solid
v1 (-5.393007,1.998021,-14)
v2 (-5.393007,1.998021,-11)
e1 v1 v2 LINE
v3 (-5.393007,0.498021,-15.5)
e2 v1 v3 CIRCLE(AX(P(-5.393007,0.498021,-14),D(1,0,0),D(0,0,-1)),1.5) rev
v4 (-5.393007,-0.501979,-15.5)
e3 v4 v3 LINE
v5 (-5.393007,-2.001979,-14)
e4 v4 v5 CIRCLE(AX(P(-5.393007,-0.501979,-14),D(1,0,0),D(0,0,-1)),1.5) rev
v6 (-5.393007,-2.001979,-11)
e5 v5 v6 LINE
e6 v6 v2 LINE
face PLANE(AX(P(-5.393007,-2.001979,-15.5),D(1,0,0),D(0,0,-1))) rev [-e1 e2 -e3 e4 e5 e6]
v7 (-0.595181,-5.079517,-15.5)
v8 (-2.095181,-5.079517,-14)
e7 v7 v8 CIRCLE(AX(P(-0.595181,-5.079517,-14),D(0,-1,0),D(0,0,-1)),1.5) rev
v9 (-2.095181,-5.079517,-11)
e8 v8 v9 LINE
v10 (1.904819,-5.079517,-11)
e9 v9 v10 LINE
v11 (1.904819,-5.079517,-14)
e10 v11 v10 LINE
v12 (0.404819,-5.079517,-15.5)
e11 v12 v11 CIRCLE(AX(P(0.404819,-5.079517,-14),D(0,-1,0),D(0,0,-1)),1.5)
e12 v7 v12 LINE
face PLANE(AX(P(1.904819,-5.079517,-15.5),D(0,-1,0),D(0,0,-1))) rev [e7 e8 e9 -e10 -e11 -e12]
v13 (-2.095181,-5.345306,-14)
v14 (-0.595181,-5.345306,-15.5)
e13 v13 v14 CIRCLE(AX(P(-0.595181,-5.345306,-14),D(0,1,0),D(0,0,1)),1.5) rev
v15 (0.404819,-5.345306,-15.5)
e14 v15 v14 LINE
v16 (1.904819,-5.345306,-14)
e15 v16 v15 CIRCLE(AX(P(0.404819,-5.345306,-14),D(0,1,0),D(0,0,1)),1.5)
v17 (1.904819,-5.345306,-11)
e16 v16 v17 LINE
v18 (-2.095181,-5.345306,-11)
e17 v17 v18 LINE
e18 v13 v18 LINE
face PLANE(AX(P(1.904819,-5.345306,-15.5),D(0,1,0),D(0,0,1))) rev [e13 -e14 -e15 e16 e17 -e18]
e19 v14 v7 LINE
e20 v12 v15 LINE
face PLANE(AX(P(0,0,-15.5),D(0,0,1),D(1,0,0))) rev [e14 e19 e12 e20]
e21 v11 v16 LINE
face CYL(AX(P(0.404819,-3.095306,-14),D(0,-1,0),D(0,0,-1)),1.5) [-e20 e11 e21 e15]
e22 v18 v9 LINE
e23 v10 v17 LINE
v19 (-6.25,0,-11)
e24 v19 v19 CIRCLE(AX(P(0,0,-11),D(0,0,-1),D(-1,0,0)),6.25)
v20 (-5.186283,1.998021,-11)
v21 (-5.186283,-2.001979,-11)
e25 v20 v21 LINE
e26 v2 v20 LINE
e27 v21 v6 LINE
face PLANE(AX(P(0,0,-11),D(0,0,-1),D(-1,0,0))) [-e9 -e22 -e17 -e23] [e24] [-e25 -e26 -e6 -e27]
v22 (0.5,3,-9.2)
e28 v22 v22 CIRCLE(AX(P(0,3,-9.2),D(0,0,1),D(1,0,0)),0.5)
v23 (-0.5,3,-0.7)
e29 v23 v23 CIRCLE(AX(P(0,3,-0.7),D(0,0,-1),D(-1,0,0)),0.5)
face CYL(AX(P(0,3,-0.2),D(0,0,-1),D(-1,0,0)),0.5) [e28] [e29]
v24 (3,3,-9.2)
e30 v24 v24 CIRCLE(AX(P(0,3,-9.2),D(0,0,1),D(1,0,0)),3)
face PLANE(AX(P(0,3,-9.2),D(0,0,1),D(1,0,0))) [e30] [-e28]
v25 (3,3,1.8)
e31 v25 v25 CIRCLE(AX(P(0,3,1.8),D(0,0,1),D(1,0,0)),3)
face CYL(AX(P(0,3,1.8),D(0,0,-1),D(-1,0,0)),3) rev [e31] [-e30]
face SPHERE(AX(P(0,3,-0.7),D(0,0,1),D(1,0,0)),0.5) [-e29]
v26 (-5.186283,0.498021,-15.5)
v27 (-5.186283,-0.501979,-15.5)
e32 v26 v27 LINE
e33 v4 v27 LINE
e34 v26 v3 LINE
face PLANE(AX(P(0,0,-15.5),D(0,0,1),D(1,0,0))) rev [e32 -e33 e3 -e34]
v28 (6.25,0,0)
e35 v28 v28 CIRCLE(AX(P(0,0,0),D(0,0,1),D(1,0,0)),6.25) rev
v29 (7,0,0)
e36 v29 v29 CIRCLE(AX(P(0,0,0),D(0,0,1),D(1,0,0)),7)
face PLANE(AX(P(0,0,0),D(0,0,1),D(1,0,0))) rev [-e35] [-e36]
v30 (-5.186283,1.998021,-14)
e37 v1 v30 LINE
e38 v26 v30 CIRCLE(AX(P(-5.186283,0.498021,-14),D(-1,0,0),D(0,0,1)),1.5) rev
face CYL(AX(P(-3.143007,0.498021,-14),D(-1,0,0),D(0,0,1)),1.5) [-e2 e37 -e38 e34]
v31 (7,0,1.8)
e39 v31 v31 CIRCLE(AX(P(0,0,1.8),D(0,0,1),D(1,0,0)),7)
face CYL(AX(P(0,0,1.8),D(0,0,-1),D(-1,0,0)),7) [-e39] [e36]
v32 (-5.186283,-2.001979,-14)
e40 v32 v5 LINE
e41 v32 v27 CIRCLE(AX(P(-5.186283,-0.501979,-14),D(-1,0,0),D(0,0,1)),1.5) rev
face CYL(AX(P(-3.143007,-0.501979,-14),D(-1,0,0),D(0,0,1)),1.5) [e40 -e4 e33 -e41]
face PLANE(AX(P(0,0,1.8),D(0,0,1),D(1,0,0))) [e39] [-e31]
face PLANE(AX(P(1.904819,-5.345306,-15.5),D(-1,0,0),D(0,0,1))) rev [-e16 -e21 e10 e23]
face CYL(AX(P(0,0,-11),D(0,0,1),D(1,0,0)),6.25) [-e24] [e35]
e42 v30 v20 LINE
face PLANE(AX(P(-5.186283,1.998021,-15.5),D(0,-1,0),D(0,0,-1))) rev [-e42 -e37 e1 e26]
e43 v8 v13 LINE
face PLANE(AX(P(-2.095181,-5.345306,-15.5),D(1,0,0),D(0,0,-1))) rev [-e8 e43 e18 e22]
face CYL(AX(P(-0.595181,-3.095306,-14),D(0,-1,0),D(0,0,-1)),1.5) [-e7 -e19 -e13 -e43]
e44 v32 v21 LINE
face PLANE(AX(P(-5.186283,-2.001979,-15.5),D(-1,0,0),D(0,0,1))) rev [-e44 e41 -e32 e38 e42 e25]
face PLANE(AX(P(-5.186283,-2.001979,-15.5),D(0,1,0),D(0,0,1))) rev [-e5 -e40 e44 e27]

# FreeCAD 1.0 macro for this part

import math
import FreeCAD as App
import Part
import Sketcher
Q = App.Units.Quantity


def edges_at(feature, points):
    """Names of the edges that pass closest to the given points."""
    edges = feature.Shape.Edges
    near = lambda p: min(range(len(edges)), key=lambda i: edges[i].distToShape(Part.Vertex(*p))[0])
    return sorted({f"Edge{near(p) + 1}" for p in points})


def add_polygon(sketch, points):
    """Adds a closed chain of lines whose ends are joined by coincident constraints."""
    first, n = sketch.GeometryCount, len(points)
    for a, b in zip(points, points[1:] + points[:1]):
        sketch.addGeometry(Part.LineSegment(App.Vector(*a, 0), App.Vector(*b, 0)), False)
    for i in range(n):
        sketch.addConstraint(Sketcher.Constraint("Coincident", first + i, 2, first + (i + 1) % n, 1))

doc = App.newDocument("Part")
body = doc.addObject("PartDesign::Body", "Body")

sketch1 = body.newObject("Sketcher::SketchObject", "Sketch")
sketch1.AttachmentSupport = (doc.getObject("XY_Plane"), [""])
sketch1.MapMode = "FlatFace"
sketch1.addGeometry([
    Part.Circle(App.Vector(0, 0, 0), App.Vector(0, 0, 1), 7),
    Part.Circle(App.Vector(0, 3, 0), App.Vector(0, 0, 1), 3),
], False)
sketch1.addConstraint([
    Sketcher.Constraint("Coincident", 0, 3, -1, 1),
    Sketcher.Constraint("PointOnObject", 1, 3, -2),
    Sketcher.Constraint("Diameter", 0, Q("14 mm")),
    Sketcher.Constraint("Diameter", 1, Q("6 mm")),
    Sketcher.Constraint("DistanceY", -1, 1, 1, 3, Q("3 mm")),
])
pad1 = body.newObject("PartDesign::Pad", "Pad")
pad1.Profile = sketch1
pad1.Length = 1.8

sketch2 = body.newObject("Sketcher::SketchObject", "Sketch001")
sketch2.AttachmentSupport = (doc.getObject("XY_Plane"), [""])
sketch2.MapMode = "FlatFace"
sketch2.addGeometry(Part.Circle(App.Vector(0, 0, 0), App.Vector(0, 0, 1), 6), False)
sketch2.addConstraint([
    Sketcher.Constraint("Coincident", 0, 3, -1, 1),
    Sketcher.Constraint("Diameter", 0, Q("12.5 mm")),
])
pad2 = body.newObject("PartDesign::Pad", "Pad001")
pad2.Profile = sketch2
pad2.Length = 11
pad2.Reversed = True

sketch3 = body.newObject("Sketcher::SketchObject", "Sketch002")
sketch3.AttachmentSupport = (doc.getObject("XY_Plane"), [""])
sketch3.MapMode = "FlatFace"
sketch3.AttachmentOffset = App.Placement(App.Vector(0, 0, -9.2), App.Rotation())
sketch3.addGeometry(Part.Circle(App.Vector(0, 3, 0), App.Vector(0, 0, 1), 3), False)
sketch3.addConstraint([
    Sketcher.Constraint("PointOnObject", 0, 3, -2),
    Sketcher.Constraint("Diameter", 0, Q("6 mm")),
    Sketcher.Constraint("DistanceY", -1, 1, 0, 3, Q("3 mm")),
])
pocket1 = body.newObject("PartDesign::Pocket", "Pocket")
pocket1.Profile = sketch3
pocket1.Length = 11
pocket1.Reversed = True

sketch4 = body.newObject("Sketcher::SketchObject", "Sketch003")
sketch4.AttachmentSupport = (doc.getObject("XY_Plane"), [""])
sketch4.MapMode = "FlatFace"
sketch4.AttachmentOffset = App.Placement(App.Vector(0, 0, -9.2), App.Rotation())
sketch4.addGeometry(Part.Circle(App.Vector(0, 3, 0), App.Vector(0, 0, 1), 0.5), False)
sketch4.addConstraint([
    Sketcher.Constraint("PointOnObject", 0, 3, -2),
    Sketcher.Constraint("Diameter", 0, Q("1 mm")),
    Sketcher.Constraint("DistanceY", -1, 1, 0, 3, Q("3 mm")),
])
pad3 = body.newObject("PartDesign::Pad", "Pad002")
pad3.Profile = sketch4
pad3.Length = 9
doc.recompute()

fillet = body.newObject("PartDesign::Fillet", "Fillet")
fillet.Base = (pad3, edges_at(pad3, [(-0.5, 3, -0.2)]))
fillet.Radius = 0.5

sketch5 = body.newObject("Sketcher::SketchObject", "Sketch004")
sketch5.AttachmentSupport = (doc.getObject("XY_Plane"), [""])
sketch5.MapMode = "FlatFace"
sketch5.AttachmentOffset = App.Placement(App.Vector(0, 0, -11), App.Rotation())
add_polygon(sketch5, [(1.9, -5.08), (1.9, -5.35), (-2.1, -5.35), (-2.1, -5.08)])
add_polygon(sketch5, [(-5.19, 2), (-5.19, -2), (-5.39, -2), (-5.39, 2)])
sketch5.addConstraint([
    Sketcher.Constraint("Vertical", 0),
    Sketcher.Constraint("Horizontal", 1),
    Sketcher.Constraint("Vertical", 2),
    Sketcher.Constraint("Horizontal", 3),
    Sketcher.Constraint("Vertical", 4),
    Sketcher.Constraint("Horizontal", 5),
    Sketcher.Constraint("Vertical", 6),
    Sketcher.Constraint("Horizontal", 7),
    Sketcher.Constraint("Equal", 3, 4),
    Sketcher.Constraint("DistanceX", 1, 2, 1, 1, Q("4 mm")),
    Sketcher.Constraint("DistanceY", 0, 2, 0, 1, Q("0.265789 mm")),
    Sketcher.Constraint("DistanceX", 4, 2, 2, 2, Q("3.091102 mm")),
    Sketcher.Constraint("DistanceX", 5, 2, 5, 1, Q("0.206725 mm")),
    Sketcher.Constraint("DistanceX", -1, 1, 0, 2, Q("1.904819 mm")),
    Sketcher.Constraint("DistanceY", 4, 2, -1, 1, Q("2.001979 mm")),
    Sketcher.Constraint("DistanceY", 0, 2, -1, 1, Q("5.345306 mm")),
])
pad4 = body.newObject("PartDesign::Pad", "Pad003")
pad4.Profile = sketch5
pad4.Length = 4.5
pad4.Reversed = True

sketch6 = body.newObject("Sketcher::SketchObject", "Sketch005")
sketch6.AttachmentSupport = (doc.getObject("YZ_Plane"), [""])
sketch6.MapMode = "FlatFace"
sketch6.AttachmentOffset = App.Placement(App.Vector(0, 0, -5.393007), App.Rotation())
sketch6.addGeometry([
    Part.LineSegment(App.Vector(-2, -15.5, 0), App.Vector(-2, -14, 0)),
    Part.ArcOfCircle(Part.Circle(App.Vector(-0.5, -14, 0), App.Vector(0, 0, 1), 1.5), math.radians(180), math.radians(270)),
    Part.LineSegment(App.Vector(-0.5, -15.5, 0), App.Vector(-2, -15.5, 0)),
    Part.LineSegment(App.Vector(2, -15.5, 0), App.Vector(0.5, -15.5, 0)),
    Part.ArcOfCircle(Part.Circle(App.Vector(0.5, -14, 0), App.Vector(0, 0, 1), 1.5), math.radians(-90), math.radians(0)),
    Part.LineSegment(App.Vector(2, -14, 0), App.Vector(2, -15.5, 0)),
], False)
sketch6.addConstraint([
    Sketcher.Constraint("Tangent", 0, 2, 1, 1),
    Sketcher.Constraint("Tangent", 1, 2, 2, 1),
    Sketcher.Constraint("Coincident", 2, 2, 0, 1),
    Sketcher.Constraint("Tangent", 3, 2, 4, 1),
    Sketcher.Constraint("Tangent", 4, 2, 5, 1),
    Sketcher.Constraint("Coincident", 5, 2, 3, 1),
    Sketcher.Constraint("Vertical", 0),
    Sketcher.Constraint("Horizontal", 2),
    Sketcher.Constraint("Horizontal", 3),
    Sketcher.Constraint("Vertical", 5),
    Sketcher.Constraint("Equal", 1, 4),
    Sketcher.Constraint("Horizontal", 1, 3, 4, 3),
    Sketcher.Constraint("Radius", 1, Q("1.5 mm")),
    Sketcher.Constraint("DistanceY", 1, 3, -1, 1, Q("14 mm")),
    Sketcher.Constraint("DistanceX", 1, 3, 4, 3, Q("1 mm")),
    Sketcher.Constraint("DistanceX", 1, 3, -1, 1, Q("0.501979 mm")),
])
pocket2 = body.newObject("PartDesign::Pocket", "Pocket001")
pocket2.Profile = sketch6
pocket2.Length = 4.5
pocket2.Midplane = True

sketch7 = body.newObject("Sketcher::SketchObject", "Sketch006")
sketch7.AttachmentSupport = (doc.getObject("XZ_Plane"), [""])
sketch7.MapMode = "FlatFace"
sketch7.AttachmentOffset = App.Placement(App.Vector(0, 0, 5.345306), App.Rotation())
sketch7.addGeometry([
    Part.LineSegment(App.Vector(1.9, -15.5, 0), App.Vector(1.9, -14, 0)),
    Part.ArcOfCircle(Part.Circle(App.Vector(0.4, -14, 0), App.Vector(0, 0, 1), 1.5), math.radians(-90), math.radians(0)),
    Part.LineSegment(App.Vector(0.4, -15.5, 0), App.Vector(1.9, -15.5, 0)),
    Part.LineSegment(App.Vector(-2.1, -15.5, 0), App.Vector(-0.6, -15.5, 0)),
    Part.ArcOfCircle(Part.Circle(App.Vector(-0.6, -14, 0), App.Vector(0, 0, 1), 1.5), math.radians(180), math.radians(270)),
    Part.LineSegment(App.Vector(-2.1, -14, 0), App.Vector(-2.1, -15.5, 0)),
], False)
sketch7.addConstraint([
    Sketcher.Constraint("Tangent", 0, 2, 1, 2),
    Sketcher.Constraint("Tangent", 1, 1, 2, 1),
    Sketcher.Constraint("Coincident", 2, 2, 0, 1),
    Sketcher.Constraint("Tangent", 3, 2, 4, 2),
    Sketcher.Constraint("Tangent", 4, 1, 5, 1),
    Sketcher.Constraint("Coincident", 5, 2, 3, 1),
    Sketcher.Constraint("Vertical", 0),
    Sketcher.Constraint("Horizontal", 2),
    Sketcher.Constraint("Horizontal", 3),
    Sketcher.Constraint("Vertical", 5),
    Sketcher.Constraint("Equal", 1, 4),
    Sketcher.Constraint("Horizontal", 1, 3, 4, 3),
    Sketcher.Constraint("Radius", 1, Q("1.5 mm")),
    Sketcher.Constraint("DistanceY", 1, 3, -1, 1, Q("14 mm")),
    Sketcher.Constraint("DistanceX", 4, 3, 1, 3, Q("1 mm")),
    Sketcher.Constraint("DistanceX", -1, 1, 1, 3, Q("0.404819 mm")),
])
pocket3 = body.newObject("PartDesign::Pocket", "Pocket002")
pocket3.Profile = sketch7
pocket3.Length = 4.5
pocket3.Midplane = True

doc.recompute()
